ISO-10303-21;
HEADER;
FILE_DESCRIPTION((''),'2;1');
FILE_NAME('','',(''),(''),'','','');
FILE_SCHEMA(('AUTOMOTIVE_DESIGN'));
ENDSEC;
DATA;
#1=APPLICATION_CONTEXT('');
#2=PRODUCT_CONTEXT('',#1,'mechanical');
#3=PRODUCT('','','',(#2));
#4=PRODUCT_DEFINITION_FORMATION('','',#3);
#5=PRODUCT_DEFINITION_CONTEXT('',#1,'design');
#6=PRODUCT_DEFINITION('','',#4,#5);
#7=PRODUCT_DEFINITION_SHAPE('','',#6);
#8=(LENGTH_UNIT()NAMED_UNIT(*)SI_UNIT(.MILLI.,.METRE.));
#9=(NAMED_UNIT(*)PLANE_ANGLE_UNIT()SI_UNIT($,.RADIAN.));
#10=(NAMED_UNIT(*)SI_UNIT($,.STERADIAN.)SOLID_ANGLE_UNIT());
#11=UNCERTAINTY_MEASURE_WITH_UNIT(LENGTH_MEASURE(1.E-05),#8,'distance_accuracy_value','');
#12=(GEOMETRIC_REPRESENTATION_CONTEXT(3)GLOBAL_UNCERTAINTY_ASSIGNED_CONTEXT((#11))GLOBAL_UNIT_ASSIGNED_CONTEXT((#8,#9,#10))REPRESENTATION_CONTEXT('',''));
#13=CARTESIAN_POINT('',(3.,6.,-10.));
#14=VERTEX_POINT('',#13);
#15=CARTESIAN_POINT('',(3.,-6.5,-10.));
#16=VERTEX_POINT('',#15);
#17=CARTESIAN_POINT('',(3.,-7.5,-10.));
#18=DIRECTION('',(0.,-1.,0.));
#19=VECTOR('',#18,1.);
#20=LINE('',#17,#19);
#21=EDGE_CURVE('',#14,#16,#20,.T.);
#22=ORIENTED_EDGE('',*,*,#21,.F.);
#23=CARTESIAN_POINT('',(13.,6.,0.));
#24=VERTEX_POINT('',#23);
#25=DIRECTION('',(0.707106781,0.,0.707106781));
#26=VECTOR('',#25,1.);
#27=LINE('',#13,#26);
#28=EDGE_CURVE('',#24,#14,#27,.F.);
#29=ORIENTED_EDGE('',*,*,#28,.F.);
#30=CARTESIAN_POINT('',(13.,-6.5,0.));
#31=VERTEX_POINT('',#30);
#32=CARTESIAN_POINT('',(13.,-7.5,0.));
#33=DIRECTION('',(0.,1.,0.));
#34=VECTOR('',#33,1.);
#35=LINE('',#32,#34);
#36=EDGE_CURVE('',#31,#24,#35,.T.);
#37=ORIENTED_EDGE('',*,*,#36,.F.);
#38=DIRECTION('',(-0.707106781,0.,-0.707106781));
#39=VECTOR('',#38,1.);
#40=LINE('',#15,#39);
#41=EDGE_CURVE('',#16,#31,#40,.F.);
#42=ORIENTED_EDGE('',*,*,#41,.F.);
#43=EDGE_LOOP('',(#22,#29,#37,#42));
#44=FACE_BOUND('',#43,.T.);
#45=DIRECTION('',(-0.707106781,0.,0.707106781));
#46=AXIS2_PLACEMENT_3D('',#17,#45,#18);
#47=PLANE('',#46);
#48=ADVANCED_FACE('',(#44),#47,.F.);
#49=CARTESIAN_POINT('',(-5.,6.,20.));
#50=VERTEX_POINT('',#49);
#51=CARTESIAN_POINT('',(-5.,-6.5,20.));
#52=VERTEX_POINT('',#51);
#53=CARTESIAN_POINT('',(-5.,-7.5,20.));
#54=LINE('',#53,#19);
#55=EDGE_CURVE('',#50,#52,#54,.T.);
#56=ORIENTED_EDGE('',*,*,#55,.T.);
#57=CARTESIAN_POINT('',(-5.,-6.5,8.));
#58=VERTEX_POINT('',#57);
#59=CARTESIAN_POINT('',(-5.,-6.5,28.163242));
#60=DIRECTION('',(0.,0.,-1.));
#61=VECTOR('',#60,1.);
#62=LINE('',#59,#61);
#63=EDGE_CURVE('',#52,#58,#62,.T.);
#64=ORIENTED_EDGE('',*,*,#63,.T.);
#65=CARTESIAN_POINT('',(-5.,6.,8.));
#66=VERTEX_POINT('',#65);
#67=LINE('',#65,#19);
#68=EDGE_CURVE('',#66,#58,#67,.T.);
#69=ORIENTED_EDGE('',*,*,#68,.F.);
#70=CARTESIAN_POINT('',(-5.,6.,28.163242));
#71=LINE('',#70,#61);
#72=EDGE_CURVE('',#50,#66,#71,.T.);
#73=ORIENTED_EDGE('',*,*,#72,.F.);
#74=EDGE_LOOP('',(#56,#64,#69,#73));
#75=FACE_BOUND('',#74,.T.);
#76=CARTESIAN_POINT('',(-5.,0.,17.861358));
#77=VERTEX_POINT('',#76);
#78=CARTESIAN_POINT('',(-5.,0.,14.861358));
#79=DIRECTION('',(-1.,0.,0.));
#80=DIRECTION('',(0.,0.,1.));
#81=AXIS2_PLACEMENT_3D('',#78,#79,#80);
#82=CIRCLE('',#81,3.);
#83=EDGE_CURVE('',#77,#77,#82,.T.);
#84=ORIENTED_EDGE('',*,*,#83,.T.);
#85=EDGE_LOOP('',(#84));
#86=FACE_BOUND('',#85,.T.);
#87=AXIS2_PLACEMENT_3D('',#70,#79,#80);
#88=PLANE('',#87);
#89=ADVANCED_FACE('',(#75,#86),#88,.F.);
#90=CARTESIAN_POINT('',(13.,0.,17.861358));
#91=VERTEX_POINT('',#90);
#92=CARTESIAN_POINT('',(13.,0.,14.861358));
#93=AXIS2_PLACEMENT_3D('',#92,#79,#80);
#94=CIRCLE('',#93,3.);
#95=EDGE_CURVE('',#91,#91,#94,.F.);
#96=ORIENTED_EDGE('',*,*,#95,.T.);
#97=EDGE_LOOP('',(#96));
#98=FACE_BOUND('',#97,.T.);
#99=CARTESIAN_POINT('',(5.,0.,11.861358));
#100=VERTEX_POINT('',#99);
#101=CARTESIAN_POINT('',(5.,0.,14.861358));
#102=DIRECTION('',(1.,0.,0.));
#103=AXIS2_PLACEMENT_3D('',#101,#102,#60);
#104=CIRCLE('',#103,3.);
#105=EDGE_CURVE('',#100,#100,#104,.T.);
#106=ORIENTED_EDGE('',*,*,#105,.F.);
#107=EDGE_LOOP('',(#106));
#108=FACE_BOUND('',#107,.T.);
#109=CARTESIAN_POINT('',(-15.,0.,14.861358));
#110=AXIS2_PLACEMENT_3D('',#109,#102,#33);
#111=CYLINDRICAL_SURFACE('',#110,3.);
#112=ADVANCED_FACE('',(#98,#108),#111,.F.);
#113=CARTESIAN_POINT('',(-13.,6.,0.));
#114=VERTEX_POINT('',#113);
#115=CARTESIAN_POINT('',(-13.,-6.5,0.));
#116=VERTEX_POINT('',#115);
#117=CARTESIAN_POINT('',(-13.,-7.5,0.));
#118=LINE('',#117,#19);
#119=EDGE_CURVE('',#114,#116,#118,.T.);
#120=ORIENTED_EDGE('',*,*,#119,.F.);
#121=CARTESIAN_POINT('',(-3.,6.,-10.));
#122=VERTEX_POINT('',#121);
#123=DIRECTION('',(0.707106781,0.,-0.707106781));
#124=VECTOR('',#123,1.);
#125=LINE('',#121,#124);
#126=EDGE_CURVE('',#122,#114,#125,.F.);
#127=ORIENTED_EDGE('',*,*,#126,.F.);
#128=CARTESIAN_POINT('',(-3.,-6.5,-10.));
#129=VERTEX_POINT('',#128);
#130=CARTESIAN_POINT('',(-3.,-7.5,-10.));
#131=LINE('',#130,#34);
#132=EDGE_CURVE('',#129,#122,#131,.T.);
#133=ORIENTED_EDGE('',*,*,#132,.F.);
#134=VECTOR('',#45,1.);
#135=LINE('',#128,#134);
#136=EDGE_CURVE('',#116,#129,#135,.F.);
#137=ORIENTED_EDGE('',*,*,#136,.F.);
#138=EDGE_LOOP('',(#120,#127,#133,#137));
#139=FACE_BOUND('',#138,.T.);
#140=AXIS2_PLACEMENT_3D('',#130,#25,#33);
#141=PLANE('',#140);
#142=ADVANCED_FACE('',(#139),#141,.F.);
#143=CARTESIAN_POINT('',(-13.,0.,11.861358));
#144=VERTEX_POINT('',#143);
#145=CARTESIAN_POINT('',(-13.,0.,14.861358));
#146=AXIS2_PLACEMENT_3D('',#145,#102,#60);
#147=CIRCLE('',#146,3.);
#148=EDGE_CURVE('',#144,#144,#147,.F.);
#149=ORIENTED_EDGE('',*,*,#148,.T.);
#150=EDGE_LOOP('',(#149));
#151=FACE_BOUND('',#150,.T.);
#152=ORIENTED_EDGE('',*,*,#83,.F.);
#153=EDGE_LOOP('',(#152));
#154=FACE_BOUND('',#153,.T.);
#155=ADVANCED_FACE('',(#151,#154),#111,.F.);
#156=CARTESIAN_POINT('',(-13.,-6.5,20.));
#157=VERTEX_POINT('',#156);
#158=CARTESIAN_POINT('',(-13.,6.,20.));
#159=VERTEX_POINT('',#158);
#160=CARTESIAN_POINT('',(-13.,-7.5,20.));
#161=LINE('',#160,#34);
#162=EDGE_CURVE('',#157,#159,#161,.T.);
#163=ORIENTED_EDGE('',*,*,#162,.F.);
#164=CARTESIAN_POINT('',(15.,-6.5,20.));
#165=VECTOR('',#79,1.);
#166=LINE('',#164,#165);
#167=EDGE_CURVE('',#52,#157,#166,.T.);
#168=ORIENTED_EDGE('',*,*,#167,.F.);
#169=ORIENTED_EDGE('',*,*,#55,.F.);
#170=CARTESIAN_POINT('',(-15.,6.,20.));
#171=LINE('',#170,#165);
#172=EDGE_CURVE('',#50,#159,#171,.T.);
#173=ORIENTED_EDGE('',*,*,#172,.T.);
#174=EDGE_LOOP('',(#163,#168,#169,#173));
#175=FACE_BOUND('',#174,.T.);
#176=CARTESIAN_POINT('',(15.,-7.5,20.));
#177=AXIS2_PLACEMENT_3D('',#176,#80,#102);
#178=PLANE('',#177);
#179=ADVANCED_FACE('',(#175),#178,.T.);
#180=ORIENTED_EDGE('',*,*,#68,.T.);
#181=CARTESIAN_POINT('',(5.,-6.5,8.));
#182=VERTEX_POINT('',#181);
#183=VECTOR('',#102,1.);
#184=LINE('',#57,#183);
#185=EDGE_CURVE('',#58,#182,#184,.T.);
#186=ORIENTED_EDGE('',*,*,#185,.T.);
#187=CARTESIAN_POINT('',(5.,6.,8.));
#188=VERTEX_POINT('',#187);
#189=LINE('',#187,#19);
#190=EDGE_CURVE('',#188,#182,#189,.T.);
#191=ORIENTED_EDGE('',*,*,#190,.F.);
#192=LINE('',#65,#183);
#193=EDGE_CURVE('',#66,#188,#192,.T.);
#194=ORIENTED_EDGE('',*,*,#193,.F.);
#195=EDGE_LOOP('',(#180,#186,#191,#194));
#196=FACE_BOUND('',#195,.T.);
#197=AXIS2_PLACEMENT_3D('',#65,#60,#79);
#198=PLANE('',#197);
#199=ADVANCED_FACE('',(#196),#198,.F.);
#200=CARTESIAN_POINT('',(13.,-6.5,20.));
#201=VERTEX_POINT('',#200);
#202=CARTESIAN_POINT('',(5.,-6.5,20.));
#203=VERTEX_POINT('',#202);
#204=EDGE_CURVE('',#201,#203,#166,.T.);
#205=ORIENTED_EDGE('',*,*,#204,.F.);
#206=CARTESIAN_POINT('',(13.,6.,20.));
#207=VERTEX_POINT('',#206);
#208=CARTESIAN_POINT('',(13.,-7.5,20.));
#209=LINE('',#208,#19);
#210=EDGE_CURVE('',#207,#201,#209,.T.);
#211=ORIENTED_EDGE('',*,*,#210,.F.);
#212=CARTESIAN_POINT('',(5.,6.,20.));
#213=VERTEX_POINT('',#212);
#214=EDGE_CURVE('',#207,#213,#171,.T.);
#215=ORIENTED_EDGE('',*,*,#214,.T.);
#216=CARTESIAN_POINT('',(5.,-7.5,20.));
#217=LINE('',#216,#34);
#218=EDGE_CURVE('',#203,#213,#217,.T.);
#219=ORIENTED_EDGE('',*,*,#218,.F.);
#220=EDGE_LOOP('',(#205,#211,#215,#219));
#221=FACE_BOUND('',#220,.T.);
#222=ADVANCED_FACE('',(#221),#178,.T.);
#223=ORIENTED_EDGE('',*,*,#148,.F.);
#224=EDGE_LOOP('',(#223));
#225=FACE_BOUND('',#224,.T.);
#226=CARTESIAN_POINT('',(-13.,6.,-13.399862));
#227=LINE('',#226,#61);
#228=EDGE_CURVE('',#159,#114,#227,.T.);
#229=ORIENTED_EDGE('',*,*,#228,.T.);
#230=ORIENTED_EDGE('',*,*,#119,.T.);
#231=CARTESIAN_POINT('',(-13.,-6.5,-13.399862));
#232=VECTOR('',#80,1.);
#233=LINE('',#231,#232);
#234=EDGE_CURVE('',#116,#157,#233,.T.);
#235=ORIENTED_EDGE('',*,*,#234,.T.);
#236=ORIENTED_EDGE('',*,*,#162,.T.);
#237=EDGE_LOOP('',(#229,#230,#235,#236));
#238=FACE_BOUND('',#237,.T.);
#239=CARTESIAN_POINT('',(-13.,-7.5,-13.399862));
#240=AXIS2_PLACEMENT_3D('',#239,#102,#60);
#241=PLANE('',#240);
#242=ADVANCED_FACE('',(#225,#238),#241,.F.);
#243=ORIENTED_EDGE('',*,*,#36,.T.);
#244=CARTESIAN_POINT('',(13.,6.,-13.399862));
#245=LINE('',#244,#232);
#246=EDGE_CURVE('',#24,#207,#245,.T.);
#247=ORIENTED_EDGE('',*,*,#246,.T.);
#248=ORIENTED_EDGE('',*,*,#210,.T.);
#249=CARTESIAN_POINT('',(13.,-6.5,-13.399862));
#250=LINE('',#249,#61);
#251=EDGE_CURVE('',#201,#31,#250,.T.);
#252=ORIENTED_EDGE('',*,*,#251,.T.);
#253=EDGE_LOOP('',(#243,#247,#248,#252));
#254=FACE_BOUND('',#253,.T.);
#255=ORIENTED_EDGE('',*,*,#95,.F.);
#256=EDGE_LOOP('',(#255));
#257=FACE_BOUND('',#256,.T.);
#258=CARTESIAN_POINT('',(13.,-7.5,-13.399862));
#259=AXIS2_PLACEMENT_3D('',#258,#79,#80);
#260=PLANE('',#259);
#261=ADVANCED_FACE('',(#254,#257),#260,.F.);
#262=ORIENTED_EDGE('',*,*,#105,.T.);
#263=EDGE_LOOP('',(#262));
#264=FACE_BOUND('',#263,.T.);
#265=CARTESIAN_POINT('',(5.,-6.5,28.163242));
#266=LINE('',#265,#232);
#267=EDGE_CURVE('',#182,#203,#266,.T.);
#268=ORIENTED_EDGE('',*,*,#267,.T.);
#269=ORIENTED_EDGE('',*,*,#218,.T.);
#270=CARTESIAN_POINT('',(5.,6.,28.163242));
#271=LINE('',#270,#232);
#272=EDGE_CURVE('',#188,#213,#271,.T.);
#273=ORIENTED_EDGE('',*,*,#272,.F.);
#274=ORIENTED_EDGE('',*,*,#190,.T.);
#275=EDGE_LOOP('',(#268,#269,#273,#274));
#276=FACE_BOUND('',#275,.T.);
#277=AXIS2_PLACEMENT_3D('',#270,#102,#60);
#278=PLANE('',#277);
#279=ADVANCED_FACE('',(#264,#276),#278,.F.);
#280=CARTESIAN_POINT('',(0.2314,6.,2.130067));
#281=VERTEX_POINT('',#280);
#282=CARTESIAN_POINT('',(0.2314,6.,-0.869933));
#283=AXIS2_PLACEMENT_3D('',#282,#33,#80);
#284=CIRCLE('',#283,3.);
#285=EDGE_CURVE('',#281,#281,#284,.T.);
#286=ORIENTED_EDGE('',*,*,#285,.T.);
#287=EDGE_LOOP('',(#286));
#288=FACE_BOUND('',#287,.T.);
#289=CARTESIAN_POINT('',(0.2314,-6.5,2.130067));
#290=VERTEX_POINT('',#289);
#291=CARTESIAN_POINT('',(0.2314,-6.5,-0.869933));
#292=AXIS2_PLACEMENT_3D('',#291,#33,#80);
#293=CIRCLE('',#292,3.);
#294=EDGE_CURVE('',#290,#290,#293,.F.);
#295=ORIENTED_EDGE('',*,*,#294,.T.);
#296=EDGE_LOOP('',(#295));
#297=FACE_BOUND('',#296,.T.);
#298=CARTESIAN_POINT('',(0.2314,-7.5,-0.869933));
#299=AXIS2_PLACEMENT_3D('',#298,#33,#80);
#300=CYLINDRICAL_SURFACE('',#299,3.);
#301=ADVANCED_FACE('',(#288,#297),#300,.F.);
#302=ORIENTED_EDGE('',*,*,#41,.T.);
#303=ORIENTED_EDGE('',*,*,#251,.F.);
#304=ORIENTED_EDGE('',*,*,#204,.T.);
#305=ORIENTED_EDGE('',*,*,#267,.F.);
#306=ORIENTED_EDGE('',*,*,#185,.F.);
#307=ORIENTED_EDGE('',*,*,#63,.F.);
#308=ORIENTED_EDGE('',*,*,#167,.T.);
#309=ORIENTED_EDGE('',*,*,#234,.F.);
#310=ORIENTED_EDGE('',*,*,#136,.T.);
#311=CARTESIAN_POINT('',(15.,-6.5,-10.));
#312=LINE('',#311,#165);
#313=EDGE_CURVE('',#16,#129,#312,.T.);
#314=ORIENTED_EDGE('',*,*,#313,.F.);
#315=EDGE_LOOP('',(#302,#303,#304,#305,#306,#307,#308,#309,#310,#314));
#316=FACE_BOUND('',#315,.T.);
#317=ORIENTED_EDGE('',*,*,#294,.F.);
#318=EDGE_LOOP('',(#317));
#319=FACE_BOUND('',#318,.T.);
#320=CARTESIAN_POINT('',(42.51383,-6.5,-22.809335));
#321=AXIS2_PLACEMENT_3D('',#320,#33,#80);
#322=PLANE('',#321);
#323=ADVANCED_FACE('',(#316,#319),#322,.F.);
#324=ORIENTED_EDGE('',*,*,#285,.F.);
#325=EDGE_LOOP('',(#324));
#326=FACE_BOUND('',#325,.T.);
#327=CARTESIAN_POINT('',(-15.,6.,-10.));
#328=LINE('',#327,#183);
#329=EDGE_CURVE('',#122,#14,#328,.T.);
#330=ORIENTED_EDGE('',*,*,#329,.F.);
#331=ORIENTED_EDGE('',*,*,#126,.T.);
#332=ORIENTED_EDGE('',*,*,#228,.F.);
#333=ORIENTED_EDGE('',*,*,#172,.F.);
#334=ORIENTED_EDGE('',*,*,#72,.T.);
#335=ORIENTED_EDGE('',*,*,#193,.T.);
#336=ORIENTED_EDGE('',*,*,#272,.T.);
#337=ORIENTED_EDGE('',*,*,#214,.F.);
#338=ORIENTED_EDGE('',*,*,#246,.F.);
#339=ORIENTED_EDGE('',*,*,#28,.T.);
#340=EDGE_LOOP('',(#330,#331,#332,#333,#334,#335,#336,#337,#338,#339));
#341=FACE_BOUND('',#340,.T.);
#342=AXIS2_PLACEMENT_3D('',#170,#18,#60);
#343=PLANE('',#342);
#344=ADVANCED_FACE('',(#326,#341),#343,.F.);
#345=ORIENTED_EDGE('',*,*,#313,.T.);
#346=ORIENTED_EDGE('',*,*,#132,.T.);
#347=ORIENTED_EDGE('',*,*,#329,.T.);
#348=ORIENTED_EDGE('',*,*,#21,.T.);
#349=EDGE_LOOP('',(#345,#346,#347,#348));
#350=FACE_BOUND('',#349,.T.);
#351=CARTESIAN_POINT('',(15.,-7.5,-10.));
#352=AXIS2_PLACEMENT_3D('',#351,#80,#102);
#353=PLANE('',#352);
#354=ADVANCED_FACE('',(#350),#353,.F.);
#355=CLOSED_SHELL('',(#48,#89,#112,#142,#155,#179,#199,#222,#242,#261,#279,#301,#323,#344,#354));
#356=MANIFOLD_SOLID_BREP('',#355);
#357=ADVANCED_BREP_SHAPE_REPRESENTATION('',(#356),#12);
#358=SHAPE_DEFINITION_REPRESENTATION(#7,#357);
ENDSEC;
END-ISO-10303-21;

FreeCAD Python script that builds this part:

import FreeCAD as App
import Part
import Sketcher
from FreeCAD import Vector
Q = App.Units.Quantity


def edges_at(feature, points):
    """Names of the edges that pass closest to the given points."""
    edges = feature.Shape.Edges
    near = lambda p: min(range(len(edges)), key=lambda i: edges[i].distToShape(Part.Vertex(*p))[0])
    return sorted({f"Edge{near(p) + 1}" for p in points})


def add_polygon(sketch, points):
    """Adds a closed chain of lines whose ends are joined by coincident constraints."""
    first, n = sketch.GeometryCount, len(points)
    for a, b in zip(points, points[1:] + points[:1]):
        sketch.addGeometry(Part.LineSegment(App.Vector(*a, 0), App.Vector(*b, 0)), False)
    for i in range(n):
        sketch.addConstraint(Sketcher.Constraint("Coincident", first + i, 2, first + (i + 1) % n, 1))

doc = App.newDocument("Part")
body = doc.addObject("PartDesign::Body", "Body")

# Sketch on XY plane
sketch1 = body.newObject("Sketcher::SketchObject", "Sketch")
sketch1.AttachmentSupport = (doc.getObject("XY_Plane"), [""])
sketch1.MapMode = "FlatFace"
add_polygon(sketch1, [(-15, 6), (-15, -8), (15, -8), (15, 6)])  # lines 0-3
sketch1.addConstraint([
    Sketcher.Constraint("Vertical", 0),
    Sketcher.Constraint("Horizontal", 1),
    Sketcher.Constraint("Vertical", 2),
    Sketcher.Constraint("Horizontal", 3),
    Sketcher.Constraint("DistanceX", 1, 1, 1, 2, Q("30 mm")),
    Sketcher.Constraint("DistanceY", 0, 2, 0, 1, Q("13.5 mm")),
    Sketcher.Constraint("DistanceX", 0, 2, -1, 1, Q("15 mm")),
    Sketcher.Constraint("DistanceY", -1, 1, 2, 2, Q("6 mm")),
])
pad1 = body.newObject("PartDesign::Pad", "Pad")
pad1.Profile = sketch1
pad1.Length = 20

# Sketch on XZ plane
sketch2 = body.newObject("Sketcher::SketchObject", "Sketch001")
sketch2.AttachmentSupport = (doc.getObject("XZ_Plane"), [""])
sketch2.MapMode = "FlatFace"
sketch2.AttachmentOffset = App.Placement(Vector(0, 0, 7.5), App.Rotation())
add_polygon(sketch2, [(-5, 28), (-5, 8), (5, 8), (5, 28)])  # lines 0-3
sketch2.addConstraint([
    Sketcher.Constraint("Vertical", 0),
    Sketcher.Constraint("Horizontal", 1),
    Sketcher.Constraint("Vertical", 2),
    Sketcher.Constraint("Horizontal", 3),
    Sketcher.Constraint("DistanceX", 1, 1, 1, 2, Q("10 mm")),
    Sketcher.Constraint("DistanceX", 0, 2, -1, 1, Q("5 mm")),
    Sketcher.Constraint("DistanceY", -1, 1, 0, 2, Q("8 mm")),
    Sketcher.Constraint("DistanceY", 0, 2, 0, 1, Q("20.163242 mm")),
])
pocket1 = body.newObject("PartDesign::Pocket", "Pocket")
pocket1.Profile = sketch2
pocket1.Type = "ThroughAll"

# Sketch on YZ plane
sketch3 = body.newObject("Sketcher::SketchObject", "Sketch002")
sketch3.AttachmentSupport = (doc.getObject("YZ_Plane"), [""])
sketch3.MapMode = "FlatFace"
sketch3.AttachmentOffset = App.Placement(Vector(0, 0, 15), App.Rotation())
sketch3.addGeometry(Part.Circle(Vector(0, 14.9, 0), Vector(0, 0, 1), 3), False)
sketch3.addConstraint([
    Sketcher.Constraint("PointOnObject", 0, 3, -2),
    Sketcher.Constraint("Diameter", 0, Q("6 mm")),
    Sketcher.Constraint("DistanceY", -1, 1, 0, 3, Q("14.861358 mm")),
])
pocket2 = body.newObject("PartDesign::Pocket", "Pocket001")
pocket2.Profile = sketch3
pocket2.Type = "ThroughAll"

# Sketch on XY plane
sketch4 = body.newObject("Sketcher::SketchObject", "Sketch003")
sketch4.AttachmentSupport = (doc.getObject("XY_Plane"), [""])
sketch4.MapMode = "FlatFace"
add_polygon(sketch4, [(15, 6), (15, -8), (-15, -8), (-15, 6)])  # lines 0-3
sketch4.addConstraint([
    Sketcher.Constraint("Vertical", 0),
    Sketcher.Constraint("Horizontal", 1),
    Sketcher.Constraint("Vertical", 2),
    Sketcher.Constraint("Horizontal", 3),
    Sketcher.Constraint("DistanceX", 1, 2, 1, 1, Q("30 mm")),
    Sketcher.Constraint("DistanceY", 0, 2, 0, 1, Q("13.5 mm")),
    Sketcher.Constraint("DistanceX", -1, 1, 0, 2, Q("15 mm")),
    Sketcher.Constraint("DistanceY", -1, 1, 2, 2, Q("6 mm")),
])
pad2 = body.newObject("PartDesign::Pad", "Pad001")
pad2.Profile = sketch4
pad2.Length = 10
pad2.Reversed = True

# Sketch on XZ plane
sketch5 = body.newObject("Sketcher::SketchObject", "Sketch004")
sketch5.AttachmentSupport = (doc.getObject("XZ_Plane"), [""])
sketch5.MapMode = "FlatFace"
sketch5.AttachmentOffset = App.Placement(Vector(0, 0, -6), App.Rotation())
sketch5.addGeometry(Part.Circle(Vector(0.2, -0.9, 0), Vector(0, 0, 1), 3), False)
sketch5.addConstraint([
    Sketcher.Constraint("Diameter", 0, Q("6 mm")),
    Sketcher.Constraint("DistanceX", -1, 1, 0, 3, Q("0.2314 mm")),
    Sketcher.Constraint("DistanceY", 0, 3, -1, 1, Q("0.869933 mm")),
])
pocket3 = body.newObject("PartDesign::Pocket", "Pocket002")
pocket3.Profile = sketch5
pocket3.Type = "ThroughAll"
pocket3.Reversed = True

# Sketch on XZ plane
sketch6 = body.newObject("Sketcher::SketchObject", "Sketch005")
sketch6.AttachmentSupport = (doc.getObject("XZ_Plane"), [""])
sketch6.MapMode = "FlatFace"
sketch6.AttachmentOffset = App.Placement(Vector(0, 0, -6), App.Rotation())
add_polygon(sketch6, [(13, -13), (13, 20), (20, 20), (20, -13)])  # lines 0-3
add_polygon(sketch6, [(-20, -13), (-20, 20), (-13, 20), (-13, -13)])  # lines 4-7
sketch6.addConstraint([
    Sketcher.Constraint("Vertical", 0),
    Sketcher.Constraint("Horizontal", 1),
    Sketcher.Constraint("Vertical", 2),
    Sketcher.Constraint("Horizontal", 3),
    Sketcher.Constraint("Vertical", 4),
    Sketcher.Constraint("Horizontal", 5),
    Sketcher.Constraint("Vertical", 6),
    Sketcher.Constraint("Horizontal", 7),
    Sketcher.Constraint("Symmetric", 1, 2, 4, 2, -2),
    Sketcher.Constraint("Symmetric", 3, 2, 6, 2, -2),
    Sketcher.Constraint("DistanceX", -1, 1, 0, 2, Q("13 mm")),
    Sketcher.Constraint("DistanceX", 1, 1, 1, 2, Q("6.523991 mm")),
    Sketcher.Constraint("DistanceY", 0, 1, 0, 2, Q("33.45814 mm")),
    Sketcher.Constraint("DistanceY", -1, 1, 0, 2, Q("20.058279 mm")),
])
pocket4 = body.newObject("PartDesign::Pocket", "Pocket003")
pocket4.Profile = sketch6
pocket4.Type = "ThroughAll"
pocket4.Reversed = True

# Sketch on XZ plane
sketch7 = body.newObject("Sketcher::SketchObject", "Sketch006")
sketch7.AttachmentSupport = (doc.getObject("XZ_Plane"), [""])
sketch7.MapMode = "FlatFace"
sketch7.AttachmentOffset = App.Placement(Vector(0, 0, 7.5), App.Rotation())
add_polygon(sketch7, [(-42, 22), (-42, -23), (43, -23), (43, 22)])  # lines 0-3
sketch7.addConstraint([
    Sketcher.Constraint("Vertical", 0),
    Sketcher.Constraint("Horizontal", 1),
    Sketcher.Constraint("Vertical", 2),
    Sketcher.Constraint("Horizontal", 3),
    Sketcher.Constraint("DistanceY", -1, 1, 2, 2, Q("22.153998 mm")),
    Sketcher.Constraint("DistanceX", 1, 1, 1, 2, Q("84.903926 mm")),
    Sketcher.Constraint("DistanceY", 0, 2, 0, 1, Q("44.963333 mm")),
    Sketcher.Constraint("DistanceX", -1, 1, 1, 2, Q("42.51383 mm")),
])
pocket5 = body.newObject("PartDesign::Pocket", "Pocket004")
pocket5.Profile = sketch7
pocket5.Length = 1
doc.recompute()

chamfer = body.newObject("PartDesign::Chamfer", "Chamfer")
chamfer.Base = (pocket5, edges_at(pocket5, [(-13, -0.25, -10), (13, -0.25, -10)]))
chamfer.Size = 10

doc.recompute()
